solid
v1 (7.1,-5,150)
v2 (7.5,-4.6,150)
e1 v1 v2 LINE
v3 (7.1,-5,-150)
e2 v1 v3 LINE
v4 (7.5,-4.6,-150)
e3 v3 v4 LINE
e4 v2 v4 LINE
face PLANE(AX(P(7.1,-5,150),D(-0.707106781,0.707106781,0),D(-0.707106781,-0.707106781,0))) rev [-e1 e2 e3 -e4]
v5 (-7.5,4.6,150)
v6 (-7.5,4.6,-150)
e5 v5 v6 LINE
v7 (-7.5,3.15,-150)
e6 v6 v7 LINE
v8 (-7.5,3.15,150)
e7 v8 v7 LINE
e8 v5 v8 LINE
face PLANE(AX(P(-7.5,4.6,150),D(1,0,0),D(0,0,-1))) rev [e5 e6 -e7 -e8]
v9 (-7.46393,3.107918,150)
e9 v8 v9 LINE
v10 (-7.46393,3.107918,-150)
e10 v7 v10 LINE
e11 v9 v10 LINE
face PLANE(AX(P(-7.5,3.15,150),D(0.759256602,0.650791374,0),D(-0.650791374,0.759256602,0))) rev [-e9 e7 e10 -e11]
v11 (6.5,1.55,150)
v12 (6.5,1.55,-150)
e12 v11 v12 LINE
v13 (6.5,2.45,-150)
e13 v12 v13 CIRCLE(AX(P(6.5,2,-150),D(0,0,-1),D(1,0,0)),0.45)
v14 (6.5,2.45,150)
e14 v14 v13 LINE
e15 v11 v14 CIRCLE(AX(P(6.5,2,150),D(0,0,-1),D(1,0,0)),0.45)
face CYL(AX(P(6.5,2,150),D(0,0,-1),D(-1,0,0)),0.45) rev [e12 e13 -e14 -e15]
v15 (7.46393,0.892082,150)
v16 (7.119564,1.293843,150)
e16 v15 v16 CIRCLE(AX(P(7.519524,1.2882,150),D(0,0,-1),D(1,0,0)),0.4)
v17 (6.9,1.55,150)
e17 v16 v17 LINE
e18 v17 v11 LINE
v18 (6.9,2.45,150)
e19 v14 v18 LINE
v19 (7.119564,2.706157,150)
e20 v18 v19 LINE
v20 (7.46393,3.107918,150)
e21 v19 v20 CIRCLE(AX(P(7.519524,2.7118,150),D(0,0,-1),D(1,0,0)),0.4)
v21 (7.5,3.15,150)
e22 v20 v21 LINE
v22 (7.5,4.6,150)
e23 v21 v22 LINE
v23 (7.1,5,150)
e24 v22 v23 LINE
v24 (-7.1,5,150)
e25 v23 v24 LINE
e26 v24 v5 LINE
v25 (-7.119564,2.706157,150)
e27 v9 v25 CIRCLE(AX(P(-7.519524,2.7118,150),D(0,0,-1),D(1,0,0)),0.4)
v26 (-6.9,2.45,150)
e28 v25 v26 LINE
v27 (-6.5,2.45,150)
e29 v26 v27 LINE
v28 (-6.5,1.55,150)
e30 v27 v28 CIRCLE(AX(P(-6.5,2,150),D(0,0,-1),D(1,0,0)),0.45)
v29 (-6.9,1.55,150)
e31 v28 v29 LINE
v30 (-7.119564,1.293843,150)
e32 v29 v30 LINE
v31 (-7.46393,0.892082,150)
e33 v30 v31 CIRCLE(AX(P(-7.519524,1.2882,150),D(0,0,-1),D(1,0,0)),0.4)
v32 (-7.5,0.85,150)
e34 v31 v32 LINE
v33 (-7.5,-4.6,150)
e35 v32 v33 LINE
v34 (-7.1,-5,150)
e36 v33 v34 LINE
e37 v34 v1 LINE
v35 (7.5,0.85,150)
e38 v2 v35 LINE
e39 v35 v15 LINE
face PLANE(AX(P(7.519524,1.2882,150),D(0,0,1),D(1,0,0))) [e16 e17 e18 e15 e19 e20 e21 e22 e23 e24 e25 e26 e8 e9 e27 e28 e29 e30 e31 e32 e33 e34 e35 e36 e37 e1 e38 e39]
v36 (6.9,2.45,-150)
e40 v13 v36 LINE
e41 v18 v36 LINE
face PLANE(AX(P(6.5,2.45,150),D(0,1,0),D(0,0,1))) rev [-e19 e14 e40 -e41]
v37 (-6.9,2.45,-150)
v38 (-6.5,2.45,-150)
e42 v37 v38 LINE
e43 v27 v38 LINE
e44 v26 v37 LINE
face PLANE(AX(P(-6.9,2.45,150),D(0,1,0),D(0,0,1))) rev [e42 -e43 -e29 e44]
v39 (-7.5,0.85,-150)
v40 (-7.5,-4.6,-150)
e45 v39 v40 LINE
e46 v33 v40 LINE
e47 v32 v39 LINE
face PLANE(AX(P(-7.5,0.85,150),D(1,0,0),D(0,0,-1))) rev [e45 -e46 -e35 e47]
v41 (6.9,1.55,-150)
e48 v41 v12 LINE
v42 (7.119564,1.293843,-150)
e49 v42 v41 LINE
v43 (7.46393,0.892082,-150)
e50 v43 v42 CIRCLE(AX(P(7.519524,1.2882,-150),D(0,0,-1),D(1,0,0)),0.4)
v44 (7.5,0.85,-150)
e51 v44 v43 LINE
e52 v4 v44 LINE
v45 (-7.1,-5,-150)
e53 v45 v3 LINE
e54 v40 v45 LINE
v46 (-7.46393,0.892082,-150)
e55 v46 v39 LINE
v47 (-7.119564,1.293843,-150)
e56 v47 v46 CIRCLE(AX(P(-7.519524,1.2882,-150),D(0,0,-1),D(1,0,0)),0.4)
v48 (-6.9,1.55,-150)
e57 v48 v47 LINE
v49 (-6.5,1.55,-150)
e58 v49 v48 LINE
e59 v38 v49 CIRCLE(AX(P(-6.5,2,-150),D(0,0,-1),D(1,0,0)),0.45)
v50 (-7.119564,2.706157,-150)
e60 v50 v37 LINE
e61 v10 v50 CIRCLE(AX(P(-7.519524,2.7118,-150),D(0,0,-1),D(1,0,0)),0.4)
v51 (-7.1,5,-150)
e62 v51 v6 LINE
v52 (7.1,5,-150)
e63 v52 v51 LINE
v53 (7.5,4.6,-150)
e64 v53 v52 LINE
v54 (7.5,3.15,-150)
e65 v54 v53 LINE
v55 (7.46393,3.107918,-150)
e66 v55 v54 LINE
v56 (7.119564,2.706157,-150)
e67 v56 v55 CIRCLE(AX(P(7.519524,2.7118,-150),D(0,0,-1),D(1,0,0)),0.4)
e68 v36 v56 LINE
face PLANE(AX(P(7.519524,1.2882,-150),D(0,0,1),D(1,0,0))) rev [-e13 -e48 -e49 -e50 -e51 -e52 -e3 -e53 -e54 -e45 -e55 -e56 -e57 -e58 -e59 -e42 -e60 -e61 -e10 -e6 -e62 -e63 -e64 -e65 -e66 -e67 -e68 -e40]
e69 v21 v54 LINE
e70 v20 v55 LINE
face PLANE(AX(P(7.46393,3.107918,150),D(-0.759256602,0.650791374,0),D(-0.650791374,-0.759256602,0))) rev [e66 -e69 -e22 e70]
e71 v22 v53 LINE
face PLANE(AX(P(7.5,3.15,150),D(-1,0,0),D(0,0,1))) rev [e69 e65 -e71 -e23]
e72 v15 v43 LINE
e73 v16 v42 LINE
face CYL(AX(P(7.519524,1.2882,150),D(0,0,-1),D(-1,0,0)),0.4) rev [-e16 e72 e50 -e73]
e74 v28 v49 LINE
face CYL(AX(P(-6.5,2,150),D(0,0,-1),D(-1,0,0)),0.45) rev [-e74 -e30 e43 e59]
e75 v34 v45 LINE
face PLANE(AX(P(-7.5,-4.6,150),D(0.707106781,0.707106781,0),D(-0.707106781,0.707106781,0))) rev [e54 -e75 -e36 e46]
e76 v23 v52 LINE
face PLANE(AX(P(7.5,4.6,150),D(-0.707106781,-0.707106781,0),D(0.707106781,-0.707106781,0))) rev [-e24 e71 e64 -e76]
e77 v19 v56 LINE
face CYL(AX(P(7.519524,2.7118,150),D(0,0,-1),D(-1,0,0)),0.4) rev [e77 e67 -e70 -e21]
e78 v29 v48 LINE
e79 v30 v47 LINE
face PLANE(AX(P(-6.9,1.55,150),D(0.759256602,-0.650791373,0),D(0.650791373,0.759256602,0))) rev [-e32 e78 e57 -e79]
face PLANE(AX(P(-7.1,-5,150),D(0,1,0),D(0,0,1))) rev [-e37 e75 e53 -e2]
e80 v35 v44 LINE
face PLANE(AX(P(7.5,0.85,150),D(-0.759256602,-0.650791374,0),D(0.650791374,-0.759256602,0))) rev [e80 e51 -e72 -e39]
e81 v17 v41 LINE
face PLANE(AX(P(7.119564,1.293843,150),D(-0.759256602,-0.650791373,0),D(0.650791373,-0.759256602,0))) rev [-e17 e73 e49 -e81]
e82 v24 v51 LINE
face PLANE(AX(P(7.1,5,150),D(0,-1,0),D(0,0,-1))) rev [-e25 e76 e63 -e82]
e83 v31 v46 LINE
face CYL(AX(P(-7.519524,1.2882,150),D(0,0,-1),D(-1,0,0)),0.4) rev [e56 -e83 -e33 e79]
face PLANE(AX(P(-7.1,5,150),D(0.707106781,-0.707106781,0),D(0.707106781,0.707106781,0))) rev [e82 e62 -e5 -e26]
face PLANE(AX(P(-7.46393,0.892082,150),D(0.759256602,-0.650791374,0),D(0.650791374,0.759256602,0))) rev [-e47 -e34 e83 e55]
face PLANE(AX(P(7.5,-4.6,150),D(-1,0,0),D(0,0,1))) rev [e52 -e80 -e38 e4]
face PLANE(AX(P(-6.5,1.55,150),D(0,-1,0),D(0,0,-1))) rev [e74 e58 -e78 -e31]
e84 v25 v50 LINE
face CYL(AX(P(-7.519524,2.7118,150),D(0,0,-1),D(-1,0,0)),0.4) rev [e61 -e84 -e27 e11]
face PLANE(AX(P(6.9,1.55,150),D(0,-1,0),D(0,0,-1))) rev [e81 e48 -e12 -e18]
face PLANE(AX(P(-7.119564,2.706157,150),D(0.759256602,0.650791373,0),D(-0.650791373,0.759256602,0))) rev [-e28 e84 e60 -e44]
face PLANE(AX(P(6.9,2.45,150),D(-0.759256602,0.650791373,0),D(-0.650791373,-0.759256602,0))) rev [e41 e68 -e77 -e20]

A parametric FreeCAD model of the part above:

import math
import FreeCAD as App
import Part
import Sketcher
from FreeCAD import Vector

doc = App.newDocument("Part")
params = doc.addObject("Spreadsheet::Sheet", "Params")
for row, (alias, value) in enumerate([
    ("sketch1_radius", "0.4 mm"),
    ("sketch1_radius2", "0.45 mm"),
    ("sketch1_width", "14.2 mm"),
    ("sketch1_width2", "0.4 mm"),
    ("sketch1_height", "5.45 mm"),
    ("pad1_length", "300 mm"),
], start=1):
    params.set(f"A{row}", alias)
    params.set(f"B{row}", "=" + value)
    params.setAlias(f"B{row}", alias)

body = doc.addObject("PartDesign::Body", "Body")

# Sketch on XY plane
sketch1 = body.newObject("Sketcher::SketchObject", "Sketch")
sketch1.AttachmentSupport = (doc.getObject("XY_Plane"), [""])
sketch1.MapMode = "FlatFace"
sketch1.addGeometry([
    Part.LineSegment(Vector(-7.1, -5, 0), Vector(7.1, -5, 0)),  # 0
    Part.LineSegment(Vector(7.1, -5, 0), Vector(7.5, -4.6, 0)),  # 1
    Part.LineSegment(Vector(7.5, -4.6, 0), Vector(7.5, 0.85, 0)),  # 2
    Part.LineSegment(Vector(7.5, 0.85, 0), Vector(7.46393, 0.892082, 0)),  # 3
    Part.ArcOfCircle(Part.Circle(Vector(7.519524, 1.2882, 0), Vector(0, 0, 1), 0.4), math.radians(179.191672), math.radians(262.010917)),  # 4
    Part.LineSegment(Vector(7.119564, 1.293843, 0), Vector(6.9, 1.55, 0)),  # 5
    Part.LineSegment(Vector(6.9, 1.55, 0), Vector(6.5, 1.55, 0)),  # 6
    Part.ArcOfCircle(Part.Circle(Vector(6.5, 2, 0), Vector(0, 0, 1), 0.45), math.radians(90), math.radians(270)),  # 7
    Part.LineSegment(Vector(6.5, 2.45, 0), Vector(6.9, 2.45, 0)),  # 8
    Part.LineSegment(Vector(6.9, 2.45, 0), Vector(7.119564, 2.706157, 0)),  # 9
    Part.ArcOfCircle(Part.Circle(Vector(7.519524, 2.7118, 0), Vector(0, 0, 1), 0.4), math.radians(97.989083), math.radians(180.808328)),  # 10
    Part.LineSegment(Vector(7.46393, 3.107918, 0), Vector(7.5, 3.15, 0)),  # 11
    Part.LineSegment(Vector(7.5, 3.15, 0), Vector(7.5, 4.6, 0)),  # 12
    Part.LineSegment(Vector(7.5, 4.6, 0), Vector(7.1, 5, 0)),  # 13
    Part.LineSegment(Vector(7.1, 5, 0), Vector(-7.1, 5, 0)),  # 14
    Part.LineSegment(Vector(-7.1, 5, 0), Vector(-7.5, 4.6, 0)),  # 15
    Part.LineSegment(Vector(-7.5, 4.6, 0), Vector(-7.5, 3.15, 0)),  # 16
    Part.LineSegment(Vector(-7.5, 3.15, 0), Vector(-7.46393, 3.107918, 0)),  # 17
    Part.ArcOfCircle(Part.Circle(Vector(-7.519524, 2.7118, 0), Vector(0, 0, 1), 0.4), math.radians(-0.808328), math.radians(82.010917)),  # 18
    Part.LineSegment(Vector(-7.119564, 2.706157, 0), Vector(-6.9, 2.45, 0)),  # 19
    Part.LineSegment(Vector(-6.9, 2.45, 0), Vector(-6.5, 2.45, 0)),  # 20
    Part.ArcOfCircle(Part.Circle(Vector(-6.5, 2, 0), Vector(0, 0, 1), 0.45), math.radians(-90), math.radians(90)),  # 21
    Part.LineSegment(Vector(-6.5, 1.55, 0), Vector(-6.9, 1.55, 0)),  # 22
    Part.LineSegment(Vector(-6.9, 1.55, 0), Vector(-7.119564, 1.293843, 0)),  # 23
    Part.ArcOfCircle(Part.Circle(Vector(-7.519524, 1.2882, 0), Vector(0, 0, 1), 0.4), math.radians(-82.010917), math.radians(0.808328)),  # 24
    Part.LineSegment(Vector(-7.46393, 0.892082, 0), Vector(-7.5, 0.85, 0)),  # 25
    Part.LineSegment(Vector(-7.5, 0.85, 0), Vector(-7.5, -4.6, 0)),  # 26
    Part.LineSegment(Vector(-7.5, -4.6, 0), Vector(-7.1, -5, 0)),  # 27
], False)
sketch1.addConstraint([
    Sketcher.Constraint("Coincident", 0, 2, 1, 1),
    Sketcher.Constraint("Coincident", 1, 2, 2, 1),
    Sketcher.Constraint("Coincident", 2, 2, 3, 1),
    Sketcher.Constraint("Coincident", 3, 2, 4, 2),
    Sketcher.Constraint("Coincident", 4, 1, 5, 1),
    Sketcher.Constraint("Coincident", 5, 2, 6, 1),
    Sketcher.Constraint("Tangent", 6, 2, 7, 2),
    Sketcher.Constraint("Tangent", 7, 1, 8, 1),
    Sketcher.Constraint("Coincident", 8, 2, 9, 1),
    Sketcher.Constraint("Coincident", 9, 2, 10, 2),
    Sketcher.Constraint("Coincident", 10, 1, 11, 1),
    Sketcher.Constraint("Coincident", 11, 2, 12, 1),
    Sketcher.Constraint("Coincident", 12, 2, 13, 1),
    Sketcher.Constraint("Coincident", 13, 2, 14, 1),
    Sketcher.Constraint("Coincident", 14, 2, 15, 1),
    Sketcher.Constraint("Coincident", 15, 2, 16, 1),
    Sketcher.Constraint("Coincident", 16, 2, 17, 1),
    Sketcher.Constraint("Coincident", 17, 2, 18, 2),
    Sketcher.Constraint("Coincident", 18, 1, 19, 1),
    Sketcher.Constraint("Coincident", 19, 2, 20, 1),
    Sketcher.Constraint("Tangent", 20, 2, 21, 2),
    Sketcher.Constraint("Tangent", 21, 1, 22, 1),
    Sketcher.Constraint("Coincident", 22, 2, 23, 1),
    Sketcher.Constraint("Coincident", 23, 2, 24, 2),
    Sketcher.Constraint("Coincident", 24, 1, 25, 1),
    Sketcher.Constraint("Coincident", 25, 2, 26, 1),
    Sketcher.Constraint("Coincident", 26, 2, 27, 1),
    Sketcher.Constraint("Coincident", 27, 2, 0, 1),
    Sketcher.Constraint("Horizontal", 0),
    Sketcher.Constraint("Vertical", 2),
    Sketcher.Constraint("Horizontal", 6),
    Sketcher.Constraint("Horizontal", 8),
    Sketcher.Constraint("Vertical", 12),
    Sketcher.Constraint("Horizontal", 14),
    Sketcher.Constraint("Vertical", 16),
    Sketcher.Constraint("Horizontal", 20),
    Sketcher.Constraint("Horizontal", 22),
    Sketcher.Constraint("Vertical", 26),
    Sketcher.Constraint("Equal", 4, 10),
    Sketcher.Constraint("Equal", 10, 18),
    Sketcher.Constraint("Equal", 7, 21),
    Sketcher.Constraint("Equal", 18, 24),
    Sketcher.Constraint("Symmetric", 0, 2, 14, 2, -1, 1),
    Sketcher.Constraint("Symmetric", 1, 2, 15, 2, -1, 1),
    Sketcher.Constraint("Symmetric", 12, 2, 26, 2, -1, 1),
    Sketcher.Constraint("Symmetric", 10, 3, 18, 3, -2),
    Sketcher.Constraint("Symmetric", 7, 3, 21, 3, -2),
    Sketcher.Constraint("Symmetric", 4, 3, 24, 3, -2),
    Sketcher.Constraint("Symmetric", 12, 2, 15, 2, -2),
    Sketcher.Constraint("Parallel", 3, 5),
    Sketcher.Constraint("Parallel", 9, 11),
    Sketcher.Constraint("Perpendicular", 1, 13),
    Sketcher.Constraint("Parallel", 5, 17),
    Sketcher.Constraint("Parallel", 17, 19),
    Sketcher.Constraint("Parallel", 11, 23),
    Sketcher.Constraint("Parallel", 23, 25),
    Sketcher.Constraint("Perpendicular", 15, 27),
    Sketcher.Constraint("Horizontal", 11, 2, 16, 2),
    Sketcher.Constraint("Horizontal", 10, 1, 17, 2),
    Sketcher.Constraint("Horizontal", 9, 2, 18, 1),
    Sketcher.Constraint("Horizontal", 4, 1, 23, 2),
    Sketcher.Constraint("Horizontal", 3, 2, 24, 1),
    Sketcher.Constraint("Vertical", 4, 3, 10, 3),
    Sketcher.Constraint("Vertical", 5, 2, 8, 2),
    Sketcher.Constraint("Vertical", 4, 1, 9, 2),
    Sketcher.Constraint("Vertical", 3, 2, 10, 1),
    Sketcher.Constraint("Vertical", 0, 2, 13, 2),
    Sketcher.Constraint("Radius", 4, 0.4),
    Sketcher.Constraint("Radius", 7, 0.45),
    Sketcher.Constraint("DistanceX", 0, 1, 0, 2, 14.2),
    Sketcher.Constraint("DistanceX", 6, 2, 6, 1, 0.4),
    Sketcher.Constraint("DistanceY", -1, 1, 7, 3, 2.0),
    Sketcher.Constraint("DistanceY", 0, 2, -1, 1, 5.0),
    Sketcher.Constraint("DistanceX", 21, 3, 7, 3, 13.0),
    Sketcher.Constraint("DistanceX", 7, 3, 1, 2, 1.0),
    Sketcher.Constraint("DistanceY", 2, 1, 2, 2, 5.45),
    Sketcher.Constraint("DistanceY", -1, 1, 4, 3, 1.2882),
    Sketcher.Constraint("Distance", 5, 0.337379),
    Sketcher.Constraint("DistanceX", -1, 1, 3, 2, 7.46393),
])
sketch1.setExpression("Constraints[67]", "Params.sketch1_radius")
sketch1.setExpression("Constraints[68]", "Params.sketch1_radius2")
sketch1.setExpression("Constraints[69]", "Params.sketch1_width")
sketch1.setExpression("Constraints[70]", "Params.sketch1_width2")
sketch1.setExpression("Constraints[75]", "Params.sketch1_height")
pad1 = body.newObject("PartDesign::Pad", "Pad")
pad1.Profile = sketch1
pad1.setExpression("Length", "Params.pad1_length")
pad1.Midplane = True

doc.recompute()
